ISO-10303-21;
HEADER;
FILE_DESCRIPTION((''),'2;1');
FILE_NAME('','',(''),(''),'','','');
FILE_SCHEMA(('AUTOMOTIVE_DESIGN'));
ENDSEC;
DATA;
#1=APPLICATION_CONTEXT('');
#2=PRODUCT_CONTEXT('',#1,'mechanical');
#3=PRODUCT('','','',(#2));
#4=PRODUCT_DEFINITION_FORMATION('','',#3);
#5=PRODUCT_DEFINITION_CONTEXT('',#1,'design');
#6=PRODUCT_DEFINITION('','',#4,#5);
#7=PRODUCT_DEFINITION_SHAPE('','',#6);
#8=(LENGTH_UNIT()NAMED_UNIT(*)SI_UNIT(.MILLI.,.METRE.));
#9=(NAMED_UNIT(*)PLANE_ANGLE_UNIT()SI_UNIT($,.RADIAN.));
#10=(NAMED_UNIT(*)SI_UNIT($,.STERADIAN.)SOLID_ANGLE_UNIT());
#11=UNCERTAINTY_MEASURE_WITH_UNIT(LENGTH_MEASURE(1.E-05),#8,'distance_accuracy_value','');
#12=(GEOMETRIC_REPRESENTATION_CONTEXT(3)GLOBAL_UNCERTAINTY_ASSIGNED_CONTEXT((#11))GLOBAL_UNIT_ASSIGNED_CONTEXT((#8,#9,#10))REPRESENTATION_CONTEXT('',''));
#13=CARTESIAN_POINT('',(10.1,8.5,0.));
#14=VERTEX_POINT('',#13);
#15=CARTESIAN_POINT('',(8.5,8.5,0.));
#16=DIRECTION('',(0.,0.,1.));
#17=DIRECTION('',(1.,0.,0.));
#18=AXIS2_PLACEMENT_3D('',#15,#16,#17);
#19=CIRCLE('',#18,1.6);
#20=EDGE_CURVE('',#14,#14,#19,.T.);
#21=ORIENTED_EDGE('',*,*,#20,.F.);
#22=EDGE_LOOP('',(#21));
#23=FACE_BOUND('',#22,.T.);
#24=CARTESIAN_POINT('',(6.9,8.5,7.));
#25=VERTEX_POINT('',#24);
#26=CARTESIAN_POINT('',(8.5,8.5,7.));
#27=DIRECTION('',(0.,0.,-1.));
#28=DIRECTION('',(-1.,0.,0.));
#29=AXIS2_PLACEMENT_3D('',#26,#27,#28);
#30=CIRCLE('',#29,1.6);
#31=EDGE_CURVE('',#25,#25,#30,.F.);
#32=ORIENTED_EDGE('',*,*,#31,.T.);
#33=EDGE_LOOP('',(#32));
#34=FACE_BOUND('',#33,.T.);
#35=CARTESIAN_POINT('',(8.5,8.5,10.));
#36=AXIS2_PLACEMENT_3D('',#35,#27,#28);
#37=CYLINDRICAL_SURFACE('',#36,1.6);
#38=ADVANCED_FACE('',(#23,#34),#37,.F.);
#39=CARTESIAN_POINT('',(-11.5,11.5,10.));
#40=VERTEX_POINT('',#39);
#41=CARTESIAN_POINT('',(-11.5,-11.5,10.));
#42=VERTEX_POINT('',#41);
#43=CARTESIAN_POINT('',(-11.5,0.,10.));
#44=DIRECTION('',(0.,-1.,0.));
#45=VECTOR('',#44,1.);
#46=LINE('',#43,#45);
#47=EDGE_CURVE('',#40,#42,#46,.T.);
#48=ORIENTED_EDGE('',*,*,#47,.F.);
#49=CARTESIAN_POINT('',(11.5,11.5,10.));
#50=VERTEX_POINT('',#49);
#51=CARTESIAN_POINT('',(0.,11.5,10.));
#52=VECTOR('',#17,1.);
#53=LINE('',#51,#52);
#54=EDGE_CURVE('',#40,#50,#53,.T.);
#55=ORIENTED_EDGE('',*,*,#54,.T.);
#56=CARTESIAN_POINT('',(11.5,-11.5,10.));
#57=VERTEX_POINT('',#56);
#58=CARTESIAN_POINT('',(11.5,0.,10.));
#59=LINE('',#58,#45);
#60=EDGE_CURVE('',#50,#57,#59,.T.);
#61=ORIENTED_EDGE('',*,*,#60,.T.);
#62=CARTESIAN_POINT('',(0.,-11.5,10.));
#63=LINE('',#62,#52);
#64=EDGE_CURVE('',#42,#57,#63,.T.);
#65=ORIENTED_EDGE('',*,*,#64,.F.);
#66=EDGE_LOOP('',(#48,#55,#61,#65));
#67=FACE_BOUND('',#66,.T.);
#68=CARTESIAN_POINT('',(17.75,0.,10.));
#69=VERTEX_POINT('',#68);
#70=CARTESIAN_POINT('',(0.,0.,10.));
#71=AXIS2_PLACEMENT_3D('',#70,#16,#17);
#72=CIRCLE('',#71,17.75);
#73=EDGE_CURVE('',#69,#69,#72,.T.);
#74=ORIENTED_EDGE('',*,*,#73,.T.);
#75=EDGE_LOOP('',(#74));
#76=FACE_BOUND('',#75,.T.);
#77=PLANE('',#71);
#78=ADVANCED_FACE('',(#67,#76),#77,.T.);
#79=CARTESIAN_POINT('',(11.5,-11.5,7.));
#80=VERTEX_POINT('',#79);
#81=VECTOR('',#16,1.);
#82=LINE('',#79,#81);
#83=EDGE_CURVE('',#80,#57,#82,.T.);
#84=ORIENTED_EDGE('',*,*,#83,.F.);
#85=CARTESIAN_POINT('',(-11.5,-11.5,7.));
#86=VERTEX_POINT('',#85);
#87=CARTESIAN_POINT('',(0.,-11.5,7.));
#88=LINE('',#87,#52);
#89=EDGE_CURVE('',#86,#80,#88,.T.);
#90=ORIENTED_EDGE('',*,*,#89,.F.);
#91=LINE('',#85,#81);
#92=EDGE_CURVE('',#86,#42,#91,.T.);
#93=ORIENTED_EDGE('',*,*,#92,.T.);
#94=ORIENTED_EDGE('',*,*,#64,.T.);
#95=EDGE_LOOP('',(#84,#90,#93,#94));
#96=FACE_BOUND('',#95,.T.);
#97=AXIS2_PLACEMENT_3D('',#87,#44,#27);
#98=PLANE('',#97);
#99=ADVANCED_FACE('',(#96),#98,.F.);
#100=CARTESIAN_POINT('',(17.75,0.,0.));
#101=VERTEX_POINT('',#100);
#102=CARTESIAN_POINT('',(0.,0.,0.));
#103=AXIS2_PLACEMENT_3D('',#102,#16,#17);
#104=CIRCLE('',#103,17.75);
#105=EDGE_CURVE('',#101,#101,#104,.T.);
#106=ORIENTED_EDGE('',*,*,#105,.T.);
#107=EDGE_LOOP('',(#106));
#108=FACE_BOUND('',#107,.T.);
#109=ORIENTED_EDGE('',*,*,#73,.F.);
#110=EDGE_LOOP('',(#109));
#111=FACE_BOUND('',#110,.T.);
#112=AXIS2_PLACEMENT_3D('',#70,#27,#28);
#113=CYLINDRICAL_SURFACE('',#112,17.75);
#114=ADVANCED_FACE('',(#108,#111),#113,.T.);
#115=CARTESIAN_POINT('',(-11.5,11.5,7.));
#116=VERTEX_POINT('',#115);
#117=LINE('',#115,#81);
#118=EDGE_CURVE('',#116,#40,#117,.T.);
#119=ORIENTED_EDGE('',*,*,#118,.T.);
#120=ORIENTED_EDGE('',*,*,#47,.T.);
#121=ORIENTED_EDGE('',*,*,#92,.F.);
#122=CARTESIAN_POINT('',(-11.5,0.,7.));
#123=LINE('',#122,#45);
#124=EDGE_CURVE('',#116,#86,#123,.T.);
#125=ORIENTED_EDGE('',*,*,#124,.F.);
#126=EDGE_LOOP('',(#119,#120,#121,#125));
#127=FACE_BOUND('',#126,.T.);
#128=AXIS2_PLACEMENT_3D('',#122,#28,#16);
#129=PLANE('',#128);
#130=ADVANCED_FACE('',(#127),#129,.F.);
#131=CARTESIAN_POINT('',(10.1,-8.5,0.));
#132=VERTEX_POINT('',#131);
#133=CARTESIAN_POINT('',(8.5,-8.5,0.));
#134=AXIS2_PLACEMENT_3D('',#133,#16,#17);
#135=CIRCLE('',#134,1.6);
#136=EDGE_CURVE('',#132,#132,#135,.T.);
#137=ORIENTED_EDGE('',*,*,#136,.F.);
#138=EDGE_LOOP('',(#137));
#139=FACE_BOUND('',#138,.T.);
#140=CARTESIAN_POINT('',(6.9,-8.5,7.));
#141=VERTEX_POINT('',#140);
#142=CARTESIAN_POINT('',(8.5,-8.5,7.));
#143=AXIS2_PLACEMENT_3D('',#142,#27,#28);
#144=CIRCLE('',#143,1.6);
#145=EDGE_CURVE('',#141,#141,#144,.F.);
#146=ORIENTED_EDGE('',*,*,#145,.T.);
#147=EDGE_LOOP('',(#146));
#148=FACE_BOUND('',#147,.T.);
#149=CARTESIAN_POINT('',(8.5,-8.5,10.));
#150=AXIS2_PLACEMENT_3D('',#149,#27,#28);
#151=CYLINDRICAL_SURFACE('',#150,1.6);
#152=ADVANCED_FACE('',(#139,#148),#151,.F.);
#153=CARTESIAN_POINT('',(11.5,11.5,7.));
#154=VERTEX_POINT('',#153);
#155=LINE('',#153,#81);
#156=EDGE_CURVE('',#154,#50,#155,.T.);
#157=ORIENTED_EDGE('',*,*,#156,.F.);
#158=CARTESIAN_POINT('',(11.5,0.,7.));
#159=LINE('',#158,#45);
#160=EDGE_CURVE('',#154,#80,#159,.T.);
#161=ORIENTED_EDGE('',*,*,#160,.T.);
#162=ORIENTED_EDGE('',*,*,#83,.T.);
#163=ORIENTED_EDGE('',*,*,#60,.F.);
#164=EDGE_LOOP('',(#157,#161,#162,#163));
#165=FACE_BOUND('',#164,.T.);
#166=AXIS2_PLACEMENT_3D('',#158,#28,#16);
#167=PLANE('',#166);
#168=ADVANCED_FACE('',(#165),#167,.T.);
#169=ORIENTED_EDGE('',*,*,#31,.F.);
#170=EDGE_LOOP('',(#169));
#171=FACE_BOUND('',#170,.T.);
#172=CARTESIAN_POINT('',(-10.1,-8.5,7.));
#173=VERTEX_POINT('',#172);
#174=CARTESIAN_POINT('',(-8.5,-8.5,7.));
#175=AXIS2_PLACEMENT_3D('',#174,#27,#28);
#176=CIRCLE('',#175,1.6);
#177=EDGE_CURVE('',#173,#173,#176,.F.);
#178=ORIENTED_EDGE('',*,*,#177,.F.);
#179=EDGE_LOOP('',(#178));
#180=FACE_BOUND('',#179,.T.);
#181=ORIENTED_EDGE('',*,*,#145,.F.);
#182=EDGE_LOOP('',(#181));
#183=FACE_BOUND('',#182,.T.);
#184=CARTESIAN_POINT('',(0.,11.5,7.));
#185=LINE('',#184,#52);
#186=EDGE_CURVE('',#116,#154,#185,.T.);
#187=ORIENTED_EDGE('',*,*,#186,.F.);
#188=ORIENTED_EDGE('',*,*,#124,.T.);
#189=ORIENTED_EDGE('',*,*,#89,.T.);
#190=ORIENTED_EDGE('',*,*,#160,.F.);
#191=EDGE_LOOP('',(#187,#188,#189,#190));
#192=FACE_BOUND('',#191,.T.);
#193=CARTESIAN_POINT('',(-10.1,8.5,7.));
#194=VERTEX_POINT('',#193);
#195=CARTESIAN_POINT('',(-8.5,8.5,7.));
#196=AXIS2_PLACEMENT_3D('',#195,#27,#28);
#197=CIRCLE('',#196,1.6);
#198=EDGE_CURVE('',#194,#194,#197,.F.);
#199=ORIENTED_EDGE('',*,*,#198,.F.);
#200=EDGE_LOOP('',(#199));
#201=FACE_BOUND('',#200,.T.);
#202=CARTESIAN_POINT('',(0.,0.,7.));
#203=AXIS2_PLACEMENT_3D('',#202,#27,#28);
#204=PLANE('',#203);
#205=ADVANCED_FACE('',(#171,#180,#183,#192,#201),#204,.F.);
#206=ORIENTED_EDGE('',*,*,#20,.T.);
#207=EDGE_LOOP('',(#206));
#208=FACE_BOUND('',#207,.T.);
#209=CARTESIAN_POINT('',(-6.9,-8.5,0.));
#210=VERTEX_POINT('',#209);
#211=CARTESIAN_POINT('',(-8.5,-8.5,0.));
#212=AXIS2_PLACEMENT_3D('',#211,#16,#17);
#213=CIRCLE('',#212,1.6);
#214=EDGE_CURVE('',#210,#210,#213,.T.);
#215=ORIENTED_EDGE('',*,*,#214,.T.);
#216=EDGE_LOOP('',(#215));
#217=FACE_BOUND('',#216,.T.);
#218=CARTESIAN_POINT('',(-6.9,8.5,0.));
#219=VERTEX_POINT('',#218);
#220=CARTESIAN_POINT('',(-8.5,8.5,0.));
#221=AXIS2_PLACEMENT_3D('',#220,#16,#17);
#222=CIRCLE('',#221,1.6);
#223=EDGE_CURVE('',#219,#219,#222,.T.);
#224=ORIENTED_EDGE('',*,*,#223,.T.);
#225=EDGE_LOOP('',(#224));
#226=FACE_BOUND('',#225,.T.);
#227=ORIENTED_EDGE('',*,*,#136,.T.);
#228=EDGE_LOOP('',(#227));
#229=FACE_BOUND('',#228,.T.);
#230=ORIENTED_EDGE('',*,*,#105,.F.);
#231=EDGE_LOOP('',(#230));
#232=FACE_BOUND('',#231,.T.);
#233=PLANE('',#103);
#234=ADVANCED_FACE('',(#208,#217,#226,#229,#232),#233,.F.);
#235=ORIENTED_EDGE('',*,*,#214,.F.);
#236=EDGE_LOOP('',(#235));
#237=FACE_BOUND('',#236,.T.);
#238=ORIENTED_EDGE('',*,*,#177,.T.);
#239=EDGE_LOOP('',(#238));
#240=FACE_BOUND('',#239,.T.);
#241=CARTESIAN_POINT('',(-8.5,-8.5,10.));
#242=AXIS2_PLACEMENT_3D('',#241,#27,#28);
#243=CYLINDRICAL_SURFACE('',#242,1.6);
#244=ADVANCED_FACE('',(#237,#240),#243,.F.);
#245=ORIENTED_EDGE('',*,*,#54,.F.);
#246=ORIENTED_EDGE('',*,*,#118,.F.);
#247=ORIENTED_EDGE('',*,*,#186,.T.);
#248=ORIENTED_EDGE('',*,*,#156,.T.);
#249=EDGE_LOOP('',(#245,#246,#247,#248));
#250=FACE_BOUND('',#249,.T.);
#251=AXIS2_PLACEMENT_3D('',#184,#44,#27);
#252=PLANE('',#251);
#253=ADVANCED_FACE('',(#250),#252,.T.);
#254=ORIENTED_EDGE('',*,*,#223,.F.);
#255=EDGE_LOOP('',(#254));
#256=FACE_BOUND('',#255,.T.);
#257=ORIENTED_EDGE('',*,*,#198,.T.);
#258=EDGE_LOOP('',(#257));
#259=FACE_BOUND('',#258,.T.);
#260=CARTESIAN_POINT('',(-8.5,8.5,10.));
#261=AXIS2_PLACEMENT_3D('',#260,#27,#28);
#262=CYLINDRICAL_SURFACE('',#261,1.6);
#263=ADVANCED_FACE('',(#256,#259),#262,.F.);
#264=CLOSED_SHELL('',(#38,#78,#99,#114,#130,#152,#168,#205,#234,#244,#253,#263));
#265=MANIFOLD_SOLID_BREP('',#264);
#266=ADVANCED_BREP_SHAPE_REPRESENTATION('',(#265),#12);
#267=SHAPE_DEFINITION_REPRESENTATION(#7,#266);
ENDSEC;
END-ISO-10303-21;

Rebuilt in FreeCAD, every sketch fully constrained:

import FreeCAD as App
import Part
import Sketcher
from FreeCAD import Vector

doc = App.newDocument("Part")
body = doc.addObject("PartDesign::Body", "Body")

sketch1 = body.newObject("Sketcher::SketchObject", "Sketch")
sketch1.AttachmentSupport = (doc.getObject("XY_Plane"), [""])
sketch1.MapMode = "FlatFace"
sketch1.addGeometry(Part.Circle(Vector(0, 0, 0), Vector(0, 0, 1), 17.75), False)
sketch1.addConstraint([
    Sketcher.Constraint("Coincident", 0, 3, -1, 1),
    Sketcher.Constraint("Diameter", 0, 35.5),
])
pad1 = body.newObject("PartDesign::Pad", "Pad")
pad1.Profile = sketch1
pad1.Length = 10

sketch2 = body.newObject("Sketcher::SketchObject", "Sketch001")
sketch2.AttachmentSupport = (doc.getObject("XY_Plane"), [""])
sketch2.MapMode = "FlatFace"
sketch2.AttachmentOffset = App.Placement(Vector(0, 0, 10), App.Rotation())
sketch2.addGeometry([
    Part.LineSegment(Vector(-11.5, -11.5, 0), Vector(11.5, -11.5, 0)),
    Part.LineSegment(Vector(11.5, -11.5, 0), Vector(11.5, 11.5, 0)),
    Part.LineSegment(Vector(11.5, 11.5, 0), Vector(-11.5, 11.5, 0)),
    Part.LineSegment(Vector(-11.5, 11.5, 0), Vector(-11.5, -11.5, 0)),
], False)
sketch2.addConstraint([
    Sketcher.Constraint("Coincident", 0, 2, 1, 1),
    Sketcher.Constraint("Coincident", 1, 2, 2, 1),
    Sketcher.Constraint("Coincident", 2, 2, 3, 1),
    Sketcher.Constraint("Coincident", 3, 2, 0, 1),
    Sketcher.Constraint("Horizontal", 0),
    Sketcher.Constraint("Vertical", 1),
    Sketcher.Constraint("Horizontal", 2),
    Sketcher.Constraint("Vertical", 3),
    Sketcher.Constraint("Symmetric", 0, 2, 2, 2, -1, 1),
    Sketcher.Constraint("Equal", 2, 1),
    Sketcher.Constraint("DistanceX", 0, 1, 0, 2, 23.0),
])
pocket1 = body.newObject("PartDesign::Pocket", "Pocket")
pocket1.Profile = sketch2
pocket1.Length = 3

sketch3 = body.newObject("Sketcher::SketchObject", "Sketch002")
sketch3.AttachmentSupport = (doc.getObject("XY_Plane"), [""])
sketch3.MapMode = "FlatFace"
sketch3.addGeometry([
    Part.Circle(Vector(8.5, -8.5, 0), Vector(0, 0, 1), 1.6),
    Part.Circle(Vector(8.5, 8.5, 0), Vector(0, 0, 1), 1.6),
    Part.Circle(Vector(-8.5, 8.5, 0), Vector(0, 0, 1), 1.6),
    Part.Circle(Vector(-8.5, -8.5, 0), Vector(0, 0, 1), 1.6),
], False)
sketch3.addConstraint([
    Sketcher.Constraint("Equal", 0, 1),
    Sketcher.Constraint("Equal", 1, 2),
    Sketcher.Constraint("Equal", 2, 3),
    Sketcher.Constraint("Symmetric", 0, 3, 2, 3, -1, 1),
    Sketcher.Constraint("Symmetric", 1, 3, 3, 3, -1, 1),
    Sketcher.Constraint("Symmetric", 1, 3, 2, 3, -2),
    Sketcher.Constraint("Diameter", 0, 3.2),
    Sketcher.Constraint("DistanceY", 0, 3, 1, 3, 17.0),
    Sketcher.Constraint("DistanceX", 2, 3, 1, 3, 17.0),
])
pocket2 = body.newObject("PartDesign::Pocket", "Pocket001")
pocket2.Profile = sketch3
pocket2.Type = "ThroughAll"
pocket2.Reversed = True

doc.recompute()
